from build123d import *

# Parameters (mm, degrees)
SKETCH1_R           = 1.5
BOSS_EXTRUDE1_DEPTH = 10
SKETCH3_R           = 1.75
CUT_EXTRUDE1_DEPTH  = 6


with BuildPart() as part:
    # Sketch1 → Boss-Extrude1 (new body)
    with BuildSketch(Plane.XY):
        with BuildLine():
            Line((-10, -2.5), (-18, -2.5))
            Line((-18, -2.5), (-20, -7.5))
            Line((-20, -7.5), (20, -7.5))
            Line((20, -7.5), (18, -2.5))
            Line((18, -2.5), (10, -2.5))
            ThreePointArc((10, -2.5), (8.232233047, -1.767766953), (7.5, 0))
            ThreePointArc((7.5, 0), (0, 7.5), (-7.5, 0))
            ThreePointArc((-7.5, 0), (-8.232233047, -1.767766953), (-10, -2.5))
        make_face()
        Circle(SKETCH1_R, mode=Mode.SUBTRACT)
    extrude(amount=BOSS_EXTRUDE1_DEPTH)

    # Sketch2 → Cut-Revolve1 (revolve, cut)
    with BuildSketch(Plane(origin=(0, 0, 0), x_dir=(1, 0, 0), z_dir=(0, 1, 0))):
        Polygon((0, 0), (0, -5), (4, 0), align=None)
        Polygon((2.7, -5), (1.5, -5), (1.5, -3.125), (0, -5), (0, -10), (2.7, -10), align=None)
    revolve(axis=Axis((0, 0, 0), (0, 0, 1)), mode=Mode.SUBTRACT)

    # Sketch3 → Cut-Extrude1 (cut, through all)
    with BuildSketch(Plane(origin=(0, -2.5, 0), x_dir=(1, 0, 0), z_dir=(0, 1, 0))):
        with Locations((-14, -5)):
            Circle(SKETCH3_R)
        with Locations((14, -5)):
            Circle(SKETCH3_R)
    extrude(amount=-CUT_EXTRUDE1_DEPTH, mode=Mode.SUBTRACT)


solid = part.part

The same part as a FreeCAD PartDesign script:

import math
import FreeCAD as App
import Part
import Sketcher
from FreeCAD import Vector

doc = App.newDocument("Part")
body = doc.addObject("PartDesign::Body", "Body")

# Sketch on XY plane
sketch1 = body.newObject("Sketcher::SketchObject", "Sketch")
sketch1.AttachmentSupport = (doc.getObject("XY_Plane"), [""])
sketch1.MapMode = "FlatFace"
sketch1.addGeometry([
    Part.LineSegment(Vector(-10, -2.5, 0), Vector(-18, -2.5, 0)),  # 0
    Part.LineSegment(Vector(-18, -2.5, 0), Vector(-20, -7.5, 0)),  # 1
    Part.LineSegment(Vector(-20, -7.5, 0), Vector(20, -7.5, 0)),  # 2
    Part.LineSegment(Vector(20, -7.5, 0), Vector(18, -2.5, 0)),  # 3
    Part.LineSegment(Vector(18, -2.5, 0), Vector(10, -2.5, 0)),  # 4
    Part.ArcOfCircle(Part.Circle(Vector(10, 0, 0), Vector(0, 0, 1), 2.5), math.radians(180), math.radians(270)),  # 5
    Part.ArcOfCircle(Part.Circle(Vector(0, 0, 0), Vector(0, 0, 1), 7.5), math.radians(0), math.radians(180)),  # 6
    Part.ArcOfCircle(Part.Circle(Vector(-10, 0, 0), Vector(0, 0, 1), 2.5), math.radians(-90), math.radians(0)),  # 7
    Part.Circle(Vector(0, 0, 0), Vector(0, 0, 1), 1.5),  # 8
], False)
sketch1.addConstraint([
    Sketcher.Constraint("Coincident", 0, 2, 1, 1),
    Sketcher.Constraint("Coincident", 1, 2, 2, 1),
    Sketcher.Constraint("Coincident", 2, 2, 3, 1),
    Sketcher.Constraint("Coincident", 3, 2, 4, 1),
    Sketcher.Constraint("Tangent", 4, 2, 5, 2),
    Sketcher.Constraint("Tangent", 5, 1, 6, 1),
    Sketcher.Constraint("Tangent", 6, 2, 7, 2),
    Sketcher.Constraint("Tangent", 7, 1, 0, 1),
    Sketcher.Constraint("Horizontal", 0),
    Sketcher.Constraint("Horizontal", 2),
    Sketcher.Constraint("Horizontal", 4),
    Sketcher.Constraint("Coincident", 6, 3, -1, 1),
    Sketcher.Constraint("Coincident", 8, 3, -1, 1),
    Sketcher.Constraint("Equal", 5, 7),
    Sketcher.Constraint("Symmetric", 0, 2, 3, 2, -2),
    Sketcher.Constraint("PointOnObject", 5, 3, -1),
    Sketcher.Constraint("Equal", 1, 3),
    Sketcher.Constraint("Diameter", 8, 3.0),
    Sketcher.Constraint("Radius", 5, 2.5),
    Sketcher.Constraint("Radius", 6, 7.5),
    Sketcher.Constraint("DistanceX", 0, 2, 0, 1, 8.0),
    Sketcher.Constraint("DistanceX", 2, 1, 2, 2, 40.0),
    Sketcher.Constraint("DistanceY", 1, 2, 0, 2, 5.0),
])
pad1 = body.newObject("PartDesign::Pad", "Pad")
pad1.Profile = sketch1
pad1.Length = 10

# Sketch on XZ plane
sketch2 = body.newObject("Sketcher::SketchObject", "Sketch001")
sketch2.AttachmentSupport = (doc.getObject("XZ_Plane"), [""])
sketch2.MapMode = "FlatFace"
sketch2.addGeometry([
    Part.LineSegment(Vector(0, 0, 0), Vector(0, 10, 0)),  # 0
    Part.LineSegment(Vector(0, 10, 0), Vector(2.7, 10, 0)),  # 1
    Part.LineSegment(Vector(2.7, 10, 0), Vector(2.7, 5, 0)),  # 2
    Part.LineSegment(Vector(2.7, 5, 0), Vector(1.5, 5, 0)),  # 3
    Part.LineSegment(Vector(1.5, 5, 0), Vector(1.5, 3.1, 0)),  # 4
    Part.LineSegment(Vector(1.5, 3.1, 0), Vector(4, 0, 0)),  # 5
    Part.LineSegment(Vector(4, 0, 0), Vector(0, 0, 0)),  # 6
], False)
sketch2.addConstraint([
    Sketcher.Constraint("Coincident", 0, 2, 1, 1),
    Sketcher.Constraint("Coincident", 1, 2, 2, 1),
    Sketcher.Constraint("Coincident", 2, 2, 3, 1),
    Sketcher.Constraint("Coincident", 3, 2, 4, 1),
    Sketcher.Constraint("Coincident", 4, 2, 5, 1),
    Sketcher.Constraint("Coincident", 5, 2, 6, 1),
    Sketcher.Constraint("Coincident", 6, 2, 0, 1),
    Sketcher.Constraint("Vertical", 0),
    Sketcher.Constraint("Horizontal", 1),
    Sketcher.Constraint("Vertical", 2),
    Sketcher.Constraint("Horizontal", 3),
    Sketcher.Constraint("Vertical", 4),
    Sketcher.Constraint("Horizontal", 6),
    Sketcher.Constraint("Coincident", 6, 2, -1, 1),
    Sketcher.Constraint("DistanceX", 6, 2, 6, 1, 4.0),
    Sketcher.Constraint("DistanceY", 0, 1, 0, 2, 10.0),
    Sketcher.Constraint("DistanceY", 2, 2, 2, 1, 5.0),
    Sketcher.Constraint("DistanceX", 1, 1, 1, 2, 2.7),
    Sketcher.Constraint("DistanceX", 3, 2, 3, 1, 1.2),
    Sketcher.Constraint("DistanceY", 4, 2, 4, 1, 1.875),
])
groove = body.newObject("PartDesign::Groove", "Groove")
groove.Profile = sketch2
groove.ReferenceAxis = (sketch2, ["V_Axis"])
groove.Angle = 360

# Sketch on XZ plane
sketch3 = body.newObject("Sketcher::SketchObject", "Sketch002")
sketch3.AttachmentSupport = (doc.getObject("XZ_Plane"), [""])
sketch3.MapMode = "FlatFace"
sketch3.AttachmentOffset = App.Placement(Vector(0, 0, 2.5), App.Rotation())
sketch3.addGeometry([
    Part.Circle(Vector(-14, 5, 0), Vector(0, 0, 1), 1.8),
    Part.Circle(Vector(14, 5, 0), Vector(0, 0, 1), 1.8),
], False)
sketch3.addConstraint([
    Sketcher.Constraint("Equal", 0, 1),
    Sketcher.Constraint("Symmetric", 0, 3, 1, 3, -2),
    Sketcher.Constraint("Diameter", 0, 3.5),
    Sketcher.Constraint("DistanceX", 0, 3, -1, 1, 14.0),
    Sketcher.Constraint("DistanceY", -1, 1, 0, 3, 5.0),
])
pocket1 = body.newObject("PartDesign::Pocket", "Pocket")
pocket1.Profile = sketch3
pocket1.Type = "ThroughAll"
pocket1.Reversed = True

doc.recompute()
